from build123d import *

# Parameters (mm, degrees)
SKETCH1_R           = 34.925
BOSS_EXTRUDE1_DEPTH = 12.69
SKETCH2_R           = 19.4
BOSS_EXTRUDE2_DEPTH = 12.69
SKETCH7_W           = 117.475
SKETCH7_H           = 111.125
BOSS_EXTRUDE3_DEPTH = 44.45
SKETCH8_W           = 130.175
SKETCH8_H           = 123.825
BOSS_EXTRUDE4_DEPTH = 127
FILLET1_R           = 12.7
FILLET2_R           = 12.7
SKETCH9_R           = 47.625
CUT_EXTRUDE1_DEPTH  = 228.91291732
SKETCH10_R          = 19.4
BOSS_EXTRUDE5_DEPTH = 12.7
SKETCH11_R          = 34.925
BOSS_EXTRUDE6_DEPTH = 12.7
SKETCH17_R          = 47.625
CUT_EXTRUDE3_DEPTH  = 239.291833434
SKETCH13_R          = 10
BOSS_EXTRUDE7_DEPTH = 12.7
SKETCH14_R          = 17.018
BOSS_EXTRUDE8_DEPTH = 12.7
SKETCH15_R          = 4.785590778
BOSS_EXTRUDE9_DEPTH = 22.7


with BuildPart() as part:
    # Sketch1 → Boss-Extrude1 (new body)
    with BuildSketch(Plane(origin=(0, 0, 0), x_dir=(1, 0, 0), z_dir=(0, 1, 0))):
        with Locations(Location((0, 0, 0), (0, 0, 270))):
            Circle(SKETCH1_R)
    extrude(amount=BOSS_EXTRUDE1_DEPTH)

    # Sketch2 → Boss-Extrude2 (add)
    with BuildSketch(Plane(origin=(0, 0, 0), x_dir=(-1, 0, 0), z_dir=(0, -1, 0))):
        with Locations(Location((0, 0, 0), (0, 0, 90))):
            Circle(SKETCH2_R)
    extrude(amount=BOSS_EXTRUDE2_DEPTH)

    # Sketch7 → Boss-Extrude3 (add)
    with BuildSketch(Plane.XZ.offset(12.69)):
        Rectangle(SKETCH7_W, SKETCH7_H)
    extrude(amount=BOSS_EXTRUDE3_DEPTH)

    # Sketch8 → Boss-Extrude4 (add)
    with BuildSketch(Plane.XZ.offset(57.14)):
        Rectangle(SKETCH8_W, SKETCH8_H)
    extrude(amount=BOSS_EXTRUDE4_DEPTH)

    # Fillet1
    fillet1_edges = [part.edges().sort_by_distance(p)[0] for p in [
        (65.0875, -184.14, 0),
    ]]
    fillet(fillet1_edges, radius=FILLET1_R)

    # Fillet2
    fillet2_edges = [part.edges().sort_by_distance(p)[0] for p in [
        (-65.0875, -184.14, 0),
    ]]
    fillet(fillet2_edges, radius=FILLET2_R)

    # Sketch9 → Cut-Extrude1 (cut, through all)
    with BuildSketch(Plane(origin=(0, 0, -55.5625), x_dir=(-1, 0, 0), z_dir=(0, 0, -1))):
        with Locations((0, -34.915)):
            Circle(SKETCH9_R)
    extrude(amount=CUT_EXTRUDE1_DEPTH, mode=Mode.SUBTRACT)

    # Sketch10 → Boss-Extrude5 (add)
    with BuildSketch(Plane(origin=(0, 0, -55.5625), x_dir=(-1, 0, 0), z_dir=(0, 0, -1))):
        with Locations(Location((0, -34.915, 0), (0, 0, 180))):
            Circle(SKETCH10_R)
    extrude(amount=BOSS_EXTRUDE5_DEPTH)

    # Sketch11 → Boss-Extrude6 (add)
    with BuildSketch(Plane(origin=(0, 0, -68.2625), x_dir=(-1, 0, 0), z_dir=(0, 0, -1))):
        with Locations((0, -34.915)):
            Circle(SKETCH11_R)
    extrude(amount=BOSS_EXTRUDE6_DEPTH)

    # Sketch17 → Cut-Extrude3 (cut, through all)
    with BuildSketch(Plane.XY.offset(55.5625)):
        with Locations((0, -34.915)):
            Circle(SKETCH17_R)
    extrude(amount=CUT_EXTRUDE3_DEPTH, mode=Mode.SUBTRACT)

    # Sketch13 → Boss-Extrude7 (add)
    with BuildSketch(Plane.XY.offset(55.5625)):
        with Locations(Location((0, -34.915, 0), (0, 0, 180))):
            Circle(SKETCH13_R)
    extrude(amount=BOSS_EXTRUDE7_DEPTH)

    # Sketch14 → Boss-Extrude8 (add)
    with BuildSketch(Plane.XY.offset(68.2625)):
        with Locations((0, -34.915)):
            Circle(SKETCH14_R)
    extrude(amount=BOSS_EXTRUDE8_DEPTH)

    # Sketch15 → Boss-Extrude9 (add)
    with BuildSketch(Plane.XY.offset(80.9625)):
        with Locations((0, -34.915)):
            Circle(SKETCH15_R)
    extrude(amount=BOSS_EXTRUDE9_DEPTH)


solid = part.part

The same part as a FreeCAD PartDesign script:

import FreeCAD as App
import Part
import Sketcher

V = App.Vector
Q = App.Units.Quantity


def edges_at(feature, points):
    """Names of the edges that pass closest to the given points."""
    edges = feature.Shape.Edges
    near = lambda p: min(range(len(edges)), key=lambda i: edges[i].distToShape(Part.Vertex(*p))[0])
    return sorted({f"Edge{near(p) + 1}" for p in points})


def add_polygon(sketch, points):
    """Adds a closed chain of lines whose ends are joined by coincident constraints."""
    first, n = sketch.GeometryCount, len(points)
    for a, b in zip(points, points[1:] + points[:1]):
        sketch.addGeometry(Part.LineSegment(App.Vector(*a, 0), App.Vector(*b, 0)), False)
    for i in range(n):
        sketch.addConstraint(Sketcher.Constraint("Coincident", first + i, 2, first + (i + 1) % n, 1))

doc = App.newDocument("Part")
body = doc.addObject("PartDesign::Body", "Body")

sketch1 = body.newObject("Sketcher::SketchObject", "Sketch")
sketch1.AttachmentSupport = (doc.getObject("XZ_Plane"), [""])
sketch1.MapMode = "FlatFace"
sketch1.addGeometry(Part.Circle(V(0, 0, 0), V(0, 0, 1), 35), False)
sketch1.addConstraint([
    Sketcher.Constraint("Coincident", 0, 3, -1, 1),
    Sketcher.Constraint("Diameter", 0, Q("2.75 in")),
])
pad1 = body.newObject("PartDesign::Pad", "Pad")
pad1.Profile = sketch1
pad1.Length = 12.69
pad1.Reversed = True

sketch2 = body.newObject("Sketcher::SketchObject", "Sketch001")
sketch2.AttachmentSupport = (doc.getObject("XZ_Plane"), [""])
sketch2.MapMode = "FlatFace"
sketch2.addGeometry(Part.Circle(V(0, 0, 0), V(0, 0, 1), 19), False)
sketch2.addConstraint([
    Sketcher.Constraint("Coincident", 0, 3, -1, 1),
    Sketcher.Constraint("Diameter", 0, 38.8),
])
pad2 = body.newObject("PartDesign::Pad", "Pad001")
pad2.Profile = sketch2
pad2.Length = 12.69

sketch3 = body.newObject("Sketcher::SketchObject", "Sketch002")
sketch3.AttachmentSupport = (doc.getObject("XZ_Plane"), [""])
sketch3.MapMode = "FlatFace"
sketch3.AttachmentOffset = App.Placement(V(0, 0, 12.69), App.Rotation())
add_polygon(sketch3, [(-59, 56), (-59, -56), (59, -56), (59, 56)])
sketch3.addConstraint([
    Sketcher.Constraint("Vertical", 0),
    Sketcher.Constraint("Horizontal", 1),
    Sketcher.Constraint("Vertical", 2),
    Sketcher.Constraint("Horizontal", 3),
    Sketcher.Constraint("Symmetric", 0, 2, 2, 2, -1, 1),
    Sketcher.Constraint("DistanceX", 1, 1, 1, 2, Q("4.625 in")),
    Sketcher.Constraint("DistanceY", 0, 2, 0, 1, Q("4.375 in")),
])
pad3 = body.newObject("PartDesign::Pad", "Pad002")
pad3.Profile = sketch3
pad3.Length = Q("1.75 in")

sketch4 = body.newObject("Sketcher::SketchObject", "Sketch003")
sketch4.AttachmentSupport = (doc.getObject("XZ_Plane"), [""])
sketch4.MapMode = "FlatFace"
sketch4.AttachmentOffset = App.Placement(V(0, 0, 57.14), App.Rotation())
add_polygon(sketch4, [(-65, 62), (-65, -62), (65, -62), (65, 62)])
sketch4.addConstraint([
    Sketcher.Constraint("Vertical", 0),
    Sketcher.Constraint("Horizontal", 1),
    Sketcher.Constraint("Vertical", 2),
    Sketcher.Constraint("Horizontal", 3),
    Sketcher.Constraint("Symmetric", 0, 2, 2, 2, -1, 1),
    Sketcher.Constraint("DistanceX", 1, 1, 1, 2, Q("5.125 in")),
    Sketcher.Constraint("DistanceY", 0, 2, 0, 1, Q("4.875 in")),
])
pad4 = body.newObject("PartDesign::Pad", "Pad003")
pad4.Profile = sketch4
pad4.Length = Q("5 in")
doc.recompute()

fillet = body.newObject("PartDesign::Fillet", "Fillet")
fillet.Base = (pad4, edges_at(pad4, [(65.088, -184.14, 0)]))
fillet.Radius = Q("0.5 in")
doc.recompute()

fillet2 = body.newObject("PartDesign::Fillet", "Fillet001")
fillet2.Base = (fillet, edges_at(fillet, [(-65.088, -184.14, 0)]))
fillet2.Radius = Q("0.5 in")

sketch5 = body.newObject("Sketcher::SketchObject", "Sketch004")
sketch5.AttachmentSupport = (doc.getObject("XY_Plane"), [""])
sketch5.MapMode = "FlatFace"
sketch5.AttachmentOffset = App.Placement(V(0, 0, -2.1875 * 25.4), App.Rotation())
sketch5.addGeometry(Part.Circle(V(0, -35, 0), V(0, 0, 1), 48), False)
sketch5.addConstraint([
    Sketcher.Constraint("PointOnObject", 0, 3, -2),
    Sketcher.Constraint("Diameter", 0, Q("3.75 in")),
    Sketcher.Constraint("DistanceY", 0, 3, -1, 1, 34.915),
])
pocket1 = body.newObject("PartDesign::Pocket", "Pocket")
pocket1.Profile = sketch5
pocket1.Type = "ThroughAll"

sketch6 = body.newObject("Sketcher::SketchObject", "Sketch005")
sketch6.AttachmentSupport = (doc.getObject("XY_Plane"), [""])
sketch6.MapMode = "FlatFace"
sketch6.AttachmentOffset = App.Placement(V(0, 0, -2.1875 * 25.4), App.Rotation())
sketch6.addGeometry(Part.Circle(V(0, -35, 0), V(0, 0, 1), 19), False)
sketch6.addConstraint([
    Sketcher.Constraint("PointOnObject", 0, 3, -2),
    Sketcher.Constraint("Diameter", 0, 38.8),
    Sketcher.Constraint("DistanceY", 0, 3, -1, 1, 34.915),
])
pad5 = body.newObject("PartDesign::Pad", "Pad004")
pad5.Profile = sketch6
pad5.Length = Q("0.5 in")
pad5.Reversed = True

sketch7 = body.newObject("Sketcher::SketchObject", "Sketch006")
sketch7.AttachmentSupport = (doc.getObject("XY_Plane"), [""])
sketch7.MapMode = "FlatFace"
sketch7.AttachmentOffset = App.Placement(V(0, 0, -2.6875 * 25.4), App.Rotation())
sketch7.addGeometry(Part.Circle(V(0, -35, 0), V(0, 0, 1), 35), False)
sketch7.addConstraint([
    Sketcher.Constraint("PointOnObject", 0, 3, -2),
    Sketcher.Constraint("Diameter", 0, Q("2.75 in")),
    Sketcher.Constraint("DistanceY", 0, 3, -1, 1, 34.915),
])
pad6 = body.newObject("PartDesign::Pad", "Pad005")
pad6.Profile = sketch7
pad6.Length = Q("0.5 in")
pad6.Reversed = True

sketch8 = body.newObject("Sketcher::SketchObject", "Sketch007")
sketch8.AttachmentSupport = (doc.getObject("XY_Plane"), [""])
sketch8.MapMode = "FlatFace"
sketch8.AttachmentOffset = App.Placement(V(0, 0, 2.1875 * 25.4), App.Rotation())
sketch8.addGeometry(Part.Circle(V(0, -35, 0), V(0, 0, 1), 48), False)
sketch8.addConstraint([
    Sketcher.Constraint("PointOnObject", 0, 3, -2),
    Sketcher.Constraint("Diameter", 0, Q("3.75 in")),
    Sketcher.Constraint("DistanceY", 0, 3, -1, 1, 34.915),
])
pocket2 = body.newObject("PartDesign::Pocket", "Pocket001")
pocket2.Profile = sketch8
pocket2.Type = "ThroughAll"
pocket2.Reversed = True

sketch9 = body.newObject("Sketcher::SketchObject", "Sketch008")
sketch9.AttachmentSupport = (doc.getObject("XY_Plane"), [""])
sketch9.MapMode = "FlatFace"
sketch9.AttachmentOffset = App.Placement(V(0, 0, 2.1875 * 25.4), App.Rotation())
sketch9.addGeometry(Part.Circle(V(0, -35, 0), V(0, 0, 1), 10), False)
sketch9.addConstraint([
    Sketcher.Constraint("PointOnObject", 0, 3, -2),
    Sketcher.Constraint("Diameter", 0, 20.0),
    Sketcher.Constraint("DistanceY", 0, 3, -1, 1, 34.915),
])
pad7 = body.newObject("PartDesign::Pad", "Pad006")
pad7.Profile = sketch9
pad7.Length = Q("0.5 in")

sketch10 = body.newObject("Sketcher::SketchObject", "Sketch009")
sketch10.AttachmentSupport = (doc.getObject("XY_Plane"), [""])
sketch10.MapMode = "FlatFace"
sketch10.AttachmentOffset = App.Placement(V(0, 0, 2.6875 * 25.4), App.Rotation())
sketch10.addGeometry(Part.Circle(V(0, -35, 0), V(0, 0, 1), 17), False)
sketch10.addConstraint([
    Sketcher.Constraint("PointOnObject", 0, 3, -2),
    Sketcher.Constraint("Diameter", 0, Q("1.34 in")),
    Sketcher.Constraint("DistanceY", 0, 3, -1, 1, 34.915),
])
pad8 = body.newObject("PartDesign::Pad", "Pad007")
pad8.Profile = sketch10
pad8.Length = Q("0.5 in")

sketch11 = body.newObject("Sketcher::SketchObject", "Sketch010")
sketch11.AttachmentSupport = (doc.getObject("XY_Plane"), [""])
sketch11.MapMode = "FlatFace"
sketch11.AttachmentOffset = App.Placement(V(0, 0, 3.1875 * 25.4), App.Rotation())
sketch11.addGeometry(Part.Circle(V(0, -34.9, 0), V(0, 0, 1), 4.8), False)
sketch11.addConstraint([
    Sketcher.Constraint("PointOnObject", 0, 3, -2),
    Sketcher.Constraint("Diameter", 0, 9.571182),
    Sketcher.Constraint("DistanceY", 0, 3, -1, 1, 34.915),
])
pad9 = body.newObject("PartDesign::Pad", "Pad008")
pad9.Profile = sketch11
pad9.Length = 22.7

doc.recompute()
